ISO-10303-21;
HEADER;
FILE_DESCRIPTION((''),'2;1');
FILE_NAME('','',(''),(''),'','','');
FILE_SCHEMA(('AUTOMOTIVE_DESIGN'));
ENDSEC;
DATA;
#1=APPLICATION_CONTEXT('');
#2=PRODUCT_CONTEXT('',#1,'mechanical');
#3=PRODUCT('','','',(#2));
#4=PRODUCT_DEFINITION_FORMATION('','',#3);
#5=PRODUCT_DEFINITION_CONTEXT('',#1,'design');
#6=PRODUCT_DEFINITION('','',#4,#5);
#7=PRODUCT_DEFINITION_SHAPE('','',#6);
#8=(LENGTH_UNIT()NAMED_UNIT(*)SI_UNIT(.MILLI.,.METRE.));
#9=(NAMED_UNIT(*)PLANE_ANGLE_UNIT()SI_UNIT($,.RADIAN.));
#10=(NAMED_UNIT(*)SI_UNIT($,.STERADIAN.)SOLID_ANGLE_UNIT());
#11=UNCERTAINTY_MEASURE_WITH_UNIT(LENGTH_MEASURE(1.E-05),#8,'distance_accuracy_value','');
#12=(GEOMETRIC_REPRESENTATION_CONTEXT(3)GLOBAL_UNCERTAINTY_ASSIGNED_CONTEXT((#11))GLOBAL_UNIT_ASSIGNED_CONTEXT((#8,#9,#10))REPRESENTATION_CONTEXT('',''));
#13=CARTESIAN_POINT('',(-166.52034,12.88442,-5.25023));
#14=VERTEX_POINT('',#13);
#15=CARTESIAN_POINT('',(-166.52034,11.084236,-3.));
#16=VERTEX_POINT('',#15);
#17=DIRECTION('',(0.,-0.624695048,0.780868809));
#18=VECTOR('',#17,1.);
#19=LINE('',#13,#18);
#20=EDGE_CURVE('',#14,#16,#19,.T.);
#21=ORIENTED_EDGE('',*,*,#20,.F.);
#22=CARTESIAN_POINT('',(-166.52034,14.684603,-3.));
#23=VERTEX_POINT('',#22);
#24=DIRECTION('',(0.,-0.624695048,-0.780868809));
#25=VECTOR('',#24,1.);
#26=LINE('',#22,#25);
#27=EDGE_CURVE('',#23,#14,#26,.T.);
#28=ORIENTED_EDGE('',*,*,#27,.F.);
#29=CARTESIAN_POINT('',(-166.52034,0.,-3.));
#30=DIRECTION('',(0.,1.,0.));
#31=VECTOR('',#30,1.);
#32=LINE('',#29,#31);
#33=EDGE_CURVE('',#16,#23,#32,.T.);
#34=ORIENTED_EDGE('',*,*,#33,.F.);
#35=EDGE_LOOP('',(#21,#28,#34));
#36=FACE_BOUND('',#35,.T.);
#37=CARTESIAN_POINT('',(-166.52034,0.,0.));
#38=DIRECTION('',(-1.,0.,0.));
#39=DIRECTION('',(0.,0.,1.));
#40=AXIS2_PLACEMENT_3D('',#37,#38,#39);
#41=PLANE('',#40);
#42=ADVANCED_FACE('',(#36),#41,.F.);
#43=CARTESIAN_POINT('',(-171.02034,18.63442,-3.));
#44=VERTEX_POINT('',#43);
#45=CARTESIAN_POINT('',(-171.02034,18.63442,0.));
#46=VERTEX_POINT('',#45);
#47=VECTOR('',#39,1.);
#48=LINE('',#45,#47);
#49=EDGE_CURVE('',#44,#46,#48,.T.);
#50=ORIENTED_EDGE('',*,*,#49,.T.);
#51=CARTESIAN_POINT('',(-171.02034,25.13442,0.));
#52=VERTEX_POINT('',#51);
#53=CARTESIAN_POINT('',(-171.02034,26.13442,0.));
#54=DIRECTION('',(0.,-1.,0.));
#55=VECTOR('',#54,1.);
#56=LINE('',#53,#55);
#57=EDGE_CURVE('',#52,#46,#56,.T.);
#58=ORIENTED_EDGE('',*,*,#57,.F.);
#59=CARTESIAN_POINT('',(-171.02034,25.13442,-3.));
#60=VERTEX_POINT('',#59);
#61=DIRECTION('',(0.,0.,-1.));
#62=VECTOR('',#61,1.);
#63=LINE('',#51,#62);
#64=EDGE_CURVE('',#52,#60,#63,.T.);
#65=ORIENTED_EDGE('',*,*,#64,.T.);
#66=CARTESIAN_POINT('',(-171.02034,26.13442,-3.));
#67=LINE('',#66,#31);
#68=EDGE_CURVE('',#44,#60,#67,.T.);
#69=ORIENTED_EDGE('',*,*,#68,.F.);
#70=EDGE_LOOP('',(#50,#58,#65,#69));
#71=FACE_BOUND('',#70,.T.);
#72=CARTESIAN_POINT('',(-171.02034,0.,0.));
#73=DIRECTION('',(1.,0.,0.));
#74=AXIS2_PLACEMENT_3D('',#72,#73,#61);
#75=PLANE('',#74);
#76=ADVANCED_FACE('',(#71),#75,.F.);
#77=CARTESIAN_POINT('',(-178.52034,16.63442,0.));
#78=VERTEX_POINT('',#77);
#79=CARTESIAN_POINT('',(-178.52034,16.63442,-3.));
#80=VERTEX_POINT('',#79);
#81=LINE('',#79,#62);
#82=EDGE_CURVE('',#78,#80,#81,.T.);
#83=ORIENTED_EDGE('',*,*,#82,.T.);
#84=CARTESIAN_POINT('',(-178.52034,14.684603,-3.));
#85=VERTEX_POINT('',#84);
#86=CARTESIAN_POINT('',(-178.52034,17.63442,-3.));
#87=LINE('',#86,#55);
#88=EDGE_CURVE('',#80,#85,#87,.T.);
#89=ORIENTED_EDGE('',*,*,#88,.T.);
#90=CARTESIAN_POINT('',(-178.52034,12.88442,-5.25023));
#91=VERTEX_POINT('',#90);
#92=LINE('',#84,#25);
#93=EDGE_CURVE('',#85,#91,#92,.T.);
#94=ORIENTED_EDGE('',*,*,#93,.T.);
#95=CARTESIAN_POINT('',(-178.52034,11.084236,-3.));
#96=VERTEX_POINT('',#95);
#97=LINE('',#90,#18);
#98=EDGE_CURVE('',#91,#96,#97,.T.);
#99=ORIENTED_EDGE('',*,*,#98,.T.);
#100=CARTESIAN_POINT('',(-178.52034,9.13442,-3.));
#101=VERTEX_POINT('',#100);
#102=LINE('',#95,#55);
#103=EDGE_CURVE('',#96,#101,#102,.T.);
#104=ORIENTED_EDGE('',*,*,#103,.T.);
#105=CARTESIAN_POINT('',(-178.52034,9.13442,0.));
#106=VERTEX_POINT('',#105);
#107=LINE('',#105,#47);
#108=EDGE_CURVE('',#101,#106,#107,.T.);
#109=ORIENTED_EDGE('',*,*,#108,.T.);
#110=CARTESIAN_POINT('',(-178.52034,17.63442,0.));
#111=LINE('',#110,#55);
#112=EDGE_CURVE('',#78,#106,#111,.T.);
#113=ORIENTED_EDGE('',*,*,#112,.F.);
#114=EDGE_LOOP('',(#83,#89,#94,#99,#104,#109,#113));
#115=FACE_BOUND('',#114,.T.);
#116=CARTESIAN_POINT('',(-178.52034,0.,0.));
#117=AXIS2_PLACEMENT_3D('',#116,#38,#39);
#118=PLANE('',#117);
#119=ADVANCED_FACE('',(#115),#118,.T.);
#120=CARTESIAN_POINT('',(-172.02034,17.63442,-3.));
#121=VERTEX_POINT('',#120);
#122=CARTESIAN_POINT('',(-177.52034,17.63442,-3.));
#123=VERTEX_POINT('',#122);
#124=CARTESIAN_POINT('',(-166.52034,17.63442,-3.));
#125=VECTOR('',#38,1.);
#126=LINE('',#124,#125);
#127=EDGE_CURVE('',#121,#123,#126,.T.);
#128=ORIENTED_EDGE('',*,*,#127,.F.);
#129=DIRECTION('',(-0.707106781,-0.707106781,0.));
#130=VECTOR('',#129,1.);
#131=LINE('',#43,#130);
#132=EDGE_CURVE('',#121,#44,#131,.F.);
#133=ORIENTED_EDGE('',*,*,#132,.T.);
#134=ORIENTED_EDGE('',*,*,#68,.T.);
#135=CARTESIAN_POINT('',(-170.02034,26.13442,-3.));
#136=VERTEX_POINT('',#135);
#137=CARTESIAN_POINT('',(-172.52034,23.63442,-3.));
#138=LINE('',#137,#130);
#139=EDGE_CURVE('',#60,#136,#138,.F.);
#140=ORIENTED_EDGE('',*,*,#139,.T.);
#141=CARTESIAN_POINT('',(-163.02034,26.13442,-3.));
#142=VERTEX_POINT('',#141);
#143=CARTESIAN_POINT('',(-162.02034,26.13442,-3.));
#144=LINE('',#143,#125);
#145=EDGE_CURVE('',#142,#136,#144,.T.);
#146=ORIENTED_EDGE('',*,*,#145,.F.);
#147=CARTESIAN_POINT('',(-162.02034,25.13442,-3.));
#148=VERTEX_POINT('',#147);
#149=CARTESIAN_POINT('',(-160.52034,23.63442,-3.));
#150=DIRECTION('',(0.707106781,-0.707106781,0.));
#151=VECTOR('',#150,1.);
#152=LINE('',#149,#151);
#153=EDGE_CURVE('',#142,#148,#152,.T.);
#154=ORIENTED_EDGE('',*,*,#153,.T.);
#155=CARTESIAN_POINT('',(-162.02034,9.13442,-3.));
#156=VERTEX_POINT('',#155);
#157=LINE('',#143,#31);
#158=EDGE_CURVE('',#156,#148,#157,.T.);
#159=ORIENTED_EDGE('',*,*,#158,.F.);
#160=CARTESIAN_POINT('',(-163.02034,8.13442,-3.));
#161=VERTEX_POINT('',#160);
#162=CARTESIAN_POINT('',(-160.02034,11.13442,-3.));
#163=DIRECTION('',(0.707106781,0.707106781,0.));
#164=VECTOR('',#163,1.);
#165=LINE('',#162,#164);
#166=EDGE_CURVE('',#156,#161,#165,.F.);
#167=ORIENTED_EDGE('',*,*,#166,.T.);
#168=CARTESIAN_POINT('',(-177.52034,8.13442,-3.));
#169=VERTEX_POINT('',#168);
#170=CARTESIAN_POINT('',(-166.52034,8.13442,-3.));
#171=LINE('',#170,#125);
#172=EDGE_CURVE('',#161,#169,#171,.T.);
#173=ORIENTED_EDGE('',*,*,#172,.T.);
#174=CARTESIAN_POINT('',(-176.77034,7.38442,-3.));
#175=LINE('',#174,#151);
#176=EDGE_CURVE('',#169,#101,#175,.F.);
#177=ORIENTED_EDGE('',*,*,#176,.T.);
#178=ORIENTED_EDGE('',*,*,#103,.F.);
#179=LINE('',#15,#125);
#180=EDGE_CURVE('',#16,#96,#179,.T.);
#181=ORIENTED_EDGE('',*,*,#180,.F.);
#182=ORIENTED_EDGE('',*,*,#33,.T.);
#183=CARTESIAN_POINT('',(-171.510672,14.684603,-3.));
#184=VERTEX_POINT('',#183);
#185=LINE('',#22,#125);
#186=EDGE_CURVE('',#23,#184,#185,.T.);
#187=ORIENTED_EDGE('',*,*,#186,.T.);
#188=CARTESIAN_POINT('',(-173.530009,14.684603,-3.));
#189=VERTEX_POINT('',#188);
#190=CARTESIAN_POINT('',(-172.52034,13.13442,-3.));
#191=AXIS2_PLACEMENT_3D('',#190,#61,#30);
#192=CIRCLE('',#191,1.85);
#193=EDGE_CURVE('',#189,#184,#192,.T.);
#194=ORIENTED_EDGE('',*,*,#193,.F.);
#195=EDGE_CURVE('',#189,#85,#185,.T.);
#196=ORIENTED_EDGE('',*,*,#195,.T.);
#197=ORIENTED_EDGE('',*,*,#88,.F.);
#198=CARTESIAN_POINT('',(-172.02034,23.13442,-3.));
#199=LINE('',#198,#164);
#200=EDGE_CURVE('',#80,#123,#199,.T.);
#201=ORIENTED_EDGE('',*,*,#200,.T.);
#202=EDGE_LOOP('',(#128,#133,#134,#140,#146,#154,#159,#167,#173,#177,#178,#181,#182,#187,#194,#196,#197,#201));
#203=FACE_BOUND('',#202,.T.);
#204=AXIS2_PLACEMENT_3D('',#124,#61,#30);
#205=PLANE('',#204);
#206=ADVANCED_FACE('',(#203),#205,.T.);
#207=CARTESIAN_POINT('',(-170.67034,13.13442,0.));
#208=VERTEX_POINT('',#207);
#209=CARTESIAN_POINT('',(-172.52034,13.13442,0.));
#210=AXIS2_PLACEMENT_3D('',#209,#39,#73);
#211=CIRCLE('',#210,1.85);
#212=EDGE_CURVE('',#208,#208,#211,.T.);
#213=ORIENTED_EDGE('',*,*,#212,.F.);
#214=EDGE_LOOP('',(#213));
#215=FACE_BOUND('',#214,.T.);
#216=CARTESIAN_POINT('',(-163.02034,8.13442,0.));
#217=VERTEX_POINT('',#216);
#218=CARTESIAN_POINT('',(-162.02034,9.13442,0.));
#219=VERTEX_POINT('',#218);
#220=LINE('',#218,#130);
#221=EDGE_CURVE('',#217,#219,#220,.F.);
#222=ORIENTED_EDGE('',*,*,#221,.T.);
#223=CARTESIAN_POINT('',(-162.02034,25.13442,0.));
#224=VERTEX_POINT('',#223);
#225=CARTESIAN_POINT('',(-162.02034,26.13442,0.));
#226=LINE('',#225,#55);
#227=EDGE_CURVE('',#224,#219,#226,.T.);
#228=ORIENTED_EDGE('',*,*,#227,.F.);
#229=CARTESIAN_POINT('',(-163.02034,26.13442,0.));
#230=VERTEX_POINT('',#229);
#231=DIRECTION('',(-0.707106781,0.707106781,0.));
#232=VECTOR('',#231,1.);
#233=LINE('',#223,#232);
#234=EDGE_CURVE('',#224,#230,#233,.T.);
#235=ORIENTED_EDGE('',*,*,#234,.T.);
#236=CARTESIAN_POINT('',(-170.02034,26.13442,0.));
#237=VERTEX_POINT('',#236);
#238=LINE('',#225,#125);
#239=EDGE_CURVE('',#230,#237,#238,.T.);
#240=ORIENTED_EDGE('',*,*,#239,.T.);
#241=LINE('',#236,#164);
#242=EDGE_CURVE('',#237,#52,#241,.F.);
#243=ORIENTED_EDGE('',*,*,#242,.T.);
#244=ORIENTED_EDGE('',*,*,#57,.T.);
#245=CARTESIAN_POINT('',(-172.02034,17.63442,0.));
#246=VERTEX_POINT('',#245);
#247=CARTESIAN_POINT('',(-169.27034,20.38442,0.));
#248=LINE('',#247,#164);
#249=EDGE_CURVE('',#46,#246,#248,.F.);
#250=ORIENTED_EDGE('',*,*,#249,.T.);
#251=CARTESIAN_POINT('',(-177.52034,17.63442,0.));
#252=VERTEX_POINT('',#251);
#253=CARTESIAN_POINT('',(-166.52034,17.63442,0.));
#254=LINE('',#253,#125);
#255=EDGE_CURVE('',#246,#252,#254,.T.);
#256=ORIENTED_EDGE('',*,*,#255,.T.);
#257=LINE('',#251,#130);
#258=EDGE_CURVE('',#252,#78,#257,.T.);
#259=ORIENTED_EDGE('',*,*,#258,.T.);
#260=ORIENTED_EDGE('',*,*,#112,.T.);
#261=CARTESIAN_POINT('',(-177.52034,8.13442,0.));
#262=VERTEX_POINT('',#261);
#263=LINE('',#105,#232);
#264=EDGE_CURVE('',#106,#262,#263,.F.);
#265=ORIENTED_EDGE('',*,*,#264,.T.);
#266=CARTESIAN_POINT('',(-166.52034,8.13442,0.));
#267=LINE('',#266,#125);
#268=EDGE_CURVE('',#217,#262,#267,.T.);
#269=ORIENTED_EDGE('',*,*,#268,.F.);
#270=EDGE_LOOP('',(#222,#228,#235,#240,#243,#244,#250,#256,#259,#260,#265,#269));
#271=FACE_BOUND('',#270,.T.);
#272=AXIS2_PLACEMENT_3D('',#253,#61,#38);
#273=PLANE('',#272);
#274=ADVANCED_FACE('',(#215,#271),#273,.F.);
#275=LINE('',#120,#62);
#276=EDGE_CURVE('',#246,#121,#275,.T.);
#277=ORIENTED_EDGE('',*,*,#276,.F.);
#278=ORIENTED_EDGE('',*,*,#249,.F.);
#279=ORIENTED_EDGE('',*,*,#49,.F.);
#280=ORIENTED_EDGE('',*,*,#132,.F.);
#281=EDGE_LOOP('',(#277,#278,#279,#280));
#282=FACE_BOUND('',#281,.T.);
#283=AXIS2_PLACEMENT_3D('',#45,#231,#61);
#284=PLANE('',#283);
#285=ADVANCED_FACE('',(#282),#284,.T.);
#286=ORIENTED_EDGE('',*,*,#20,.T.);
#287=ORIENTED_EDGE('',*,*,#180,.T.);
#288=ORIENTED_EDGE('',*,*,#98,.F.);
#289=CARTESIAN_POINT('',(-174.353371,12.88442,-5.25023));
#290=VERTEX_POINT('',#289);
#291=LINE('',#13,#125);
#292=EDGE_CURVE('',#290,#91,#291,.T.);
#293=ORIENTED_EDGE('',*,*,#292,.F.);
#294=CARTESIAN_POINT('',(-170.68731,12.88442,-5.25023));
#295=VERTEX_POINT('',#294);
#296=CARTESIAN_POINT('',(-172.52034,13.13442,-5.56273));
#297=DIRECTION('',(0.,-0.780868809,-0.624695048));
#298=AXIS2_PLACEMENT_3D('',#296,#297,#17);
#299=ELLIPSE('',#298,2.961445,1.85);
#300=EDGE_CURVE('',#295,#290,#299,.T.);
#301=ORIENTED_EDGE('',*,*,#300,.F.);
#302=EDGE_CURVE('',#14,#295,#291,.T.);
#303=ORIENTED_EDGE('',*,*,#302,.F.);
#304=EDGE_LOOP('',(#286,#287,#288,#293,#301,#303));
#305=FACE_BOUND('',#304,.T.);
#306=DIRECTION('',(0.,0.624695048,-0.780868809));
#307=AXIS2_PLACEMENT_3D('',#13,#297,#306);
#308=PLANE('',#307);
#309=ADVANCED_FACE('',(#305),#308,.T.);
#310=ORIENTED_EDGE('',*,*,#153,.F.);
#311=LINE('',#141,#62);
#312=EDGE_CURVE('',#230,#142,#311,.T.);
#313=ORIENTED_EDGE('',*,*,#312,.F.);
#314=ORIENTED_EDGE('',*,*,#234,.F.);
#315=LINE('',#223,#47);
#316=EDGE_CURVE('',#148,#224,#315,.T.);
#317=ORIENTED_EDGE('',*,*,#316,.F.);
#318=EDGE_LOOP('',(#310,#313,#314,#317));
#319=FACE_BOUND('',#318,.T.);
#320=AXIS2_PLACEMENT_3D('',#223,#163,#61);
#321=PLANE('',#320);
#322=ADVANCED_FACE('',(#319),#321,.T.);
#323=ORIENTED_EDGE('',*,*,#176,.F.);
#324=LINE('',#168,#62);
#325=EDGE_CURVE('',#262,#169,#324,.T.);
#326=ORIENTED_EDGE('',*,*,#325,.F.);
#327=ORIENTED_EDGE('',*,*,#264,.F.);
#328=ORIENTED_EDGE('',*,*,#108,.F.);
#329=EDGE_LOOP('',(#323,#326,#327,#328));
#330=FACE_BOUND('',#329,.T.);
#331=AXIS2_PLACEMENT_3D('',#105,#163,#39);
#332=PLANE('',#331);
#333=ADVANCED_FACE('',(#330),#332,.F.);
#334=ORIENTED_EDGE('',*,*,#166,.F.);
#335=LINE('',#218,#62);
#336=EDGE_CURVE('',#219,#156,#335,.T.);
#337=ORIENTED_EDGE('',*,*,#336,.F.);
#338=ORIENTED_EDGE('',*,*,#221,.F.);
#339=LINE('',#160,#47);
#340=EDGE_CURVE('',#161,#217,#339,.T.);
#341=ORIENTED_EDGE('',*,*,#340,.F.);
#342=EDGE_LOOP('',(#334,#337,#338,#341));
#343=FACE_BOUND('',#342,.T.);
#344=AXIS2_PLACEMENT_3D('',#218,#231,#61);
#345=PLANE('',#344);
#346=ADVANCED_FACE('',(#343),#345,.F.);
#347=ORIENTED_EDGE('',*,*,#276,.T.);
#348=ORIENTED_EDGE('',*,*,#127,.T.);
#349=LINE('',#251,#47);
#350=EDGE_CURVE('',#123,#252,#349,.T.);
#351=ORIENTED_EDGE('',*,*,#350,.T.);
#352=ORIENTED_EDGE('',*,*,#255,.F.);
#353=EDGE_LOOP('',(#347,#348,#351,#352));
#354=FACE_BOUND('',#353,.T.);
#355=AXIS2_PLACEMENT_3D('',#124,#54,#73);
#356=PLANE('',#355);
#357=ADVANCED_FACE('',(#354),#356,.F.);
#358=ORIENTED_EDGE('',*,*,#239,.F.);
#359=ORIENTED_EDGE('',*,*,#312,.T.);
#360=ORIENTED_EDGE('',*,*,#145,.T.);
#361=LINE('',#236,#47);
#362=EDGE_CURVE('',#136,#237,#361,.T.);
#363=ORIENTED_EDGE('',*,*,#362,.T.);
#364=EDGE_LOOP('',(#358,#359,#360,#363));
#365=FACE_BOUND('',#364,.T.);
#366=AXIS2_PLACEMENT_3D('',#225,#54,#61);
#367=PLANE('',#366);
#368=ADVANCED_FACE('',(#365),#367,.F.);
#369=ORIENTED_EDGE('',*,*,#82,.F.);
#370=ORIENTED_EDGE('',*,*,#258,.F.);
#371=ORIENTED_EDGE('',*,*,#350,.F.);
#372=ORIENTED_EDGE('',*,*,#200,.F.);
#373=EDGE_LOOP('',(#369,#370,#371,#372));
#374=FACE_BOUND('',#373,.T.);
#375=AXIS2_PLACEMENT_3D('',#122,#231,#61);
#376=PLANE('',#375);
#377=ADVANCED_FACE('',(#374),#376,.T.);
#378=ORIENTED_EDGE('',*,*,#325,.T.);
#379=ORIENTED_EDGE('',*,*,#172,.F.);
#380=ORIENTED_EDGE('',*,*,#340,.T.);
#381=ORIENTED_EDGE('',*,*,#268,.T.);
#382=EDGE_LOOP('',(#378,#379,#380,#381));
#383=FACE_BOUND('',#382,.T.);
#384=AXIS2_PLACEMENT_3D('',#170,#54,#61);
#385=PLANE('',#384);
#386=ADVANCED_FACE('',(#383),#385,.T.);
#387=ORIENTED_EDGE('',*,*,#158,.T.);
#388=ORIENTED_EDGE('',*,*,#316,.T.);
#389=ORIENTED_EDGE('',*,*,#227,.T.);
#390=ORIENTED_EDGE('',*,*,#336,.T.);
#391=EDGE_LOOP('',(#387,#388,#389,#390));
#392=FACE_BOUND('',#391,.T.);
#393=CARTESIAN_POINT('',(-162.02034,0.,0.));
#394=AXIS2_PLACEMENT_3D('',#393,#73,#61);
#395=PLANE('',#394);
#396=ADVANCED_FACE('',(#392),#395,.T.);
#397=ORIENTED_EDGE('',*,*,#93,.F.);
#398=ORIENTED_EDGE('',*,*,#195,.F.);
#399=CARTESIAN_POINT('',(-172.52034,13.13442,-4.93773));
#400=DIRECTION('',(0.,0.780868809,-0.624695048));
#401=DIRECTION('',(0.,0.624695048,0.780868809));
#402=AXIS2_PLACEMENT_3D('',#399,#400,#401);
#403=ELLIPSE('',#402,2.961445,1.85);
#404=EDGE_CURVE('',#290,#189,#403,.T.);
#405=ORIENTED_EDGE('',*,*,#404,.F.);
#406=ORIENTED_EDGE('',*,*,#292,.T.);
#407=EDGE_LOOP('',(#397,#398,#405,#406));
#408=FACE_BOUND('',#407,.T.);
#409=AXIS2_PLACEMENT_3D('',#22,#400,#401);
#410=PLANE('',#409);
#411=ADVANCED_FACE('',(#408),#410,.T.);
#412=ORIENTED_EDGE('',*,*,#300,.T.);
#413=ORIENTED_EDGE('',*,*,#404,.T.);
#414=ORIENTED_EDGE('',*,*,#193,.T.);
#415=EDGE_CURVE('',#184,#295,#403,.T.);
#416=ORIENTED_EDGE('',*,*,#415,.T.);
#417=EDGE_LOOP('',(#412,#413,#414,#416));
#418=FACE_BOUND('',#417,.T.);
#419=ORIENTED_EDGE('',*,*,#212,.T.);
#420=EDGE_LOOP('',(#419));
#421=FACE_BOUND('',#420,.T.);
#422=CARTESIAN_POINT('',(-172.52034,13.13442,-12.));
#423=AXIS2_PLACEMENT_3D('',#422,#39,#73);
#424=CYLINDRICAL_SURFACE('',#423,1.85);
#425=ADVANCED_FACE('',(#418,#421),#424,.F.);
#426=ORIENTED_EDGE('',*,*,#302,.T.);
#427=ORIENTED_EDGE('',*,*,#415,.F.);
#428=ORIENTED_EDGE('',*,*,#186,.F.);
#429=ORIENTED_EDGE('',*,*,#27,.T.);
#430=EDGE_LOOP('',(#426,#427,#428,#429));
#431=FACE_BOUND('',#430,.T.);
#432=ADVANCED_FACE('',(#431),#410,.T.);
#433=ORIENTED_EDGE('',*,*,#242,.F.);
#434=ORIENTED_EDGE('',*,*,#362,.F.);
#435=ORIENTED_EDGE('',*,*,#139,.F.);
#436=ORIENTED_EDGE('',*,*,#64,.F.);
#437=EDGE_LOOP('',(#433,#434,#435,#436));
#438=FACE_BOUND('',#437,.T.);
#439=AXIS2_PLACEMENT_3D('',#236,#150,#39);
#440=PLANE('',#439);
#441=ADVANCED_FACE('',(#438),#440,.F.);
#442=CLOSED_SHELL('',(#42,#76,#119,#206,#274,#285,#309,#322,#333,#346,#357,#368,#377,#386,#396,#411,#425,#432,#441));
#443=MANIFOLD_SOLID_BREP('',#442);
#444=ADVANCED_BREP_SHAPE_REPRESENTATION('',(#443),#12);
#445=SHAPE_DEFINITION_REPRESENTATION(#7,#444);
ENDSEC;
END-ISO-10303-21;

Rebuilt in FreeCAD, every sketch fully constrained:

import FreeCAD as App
import Part
import Sketcher
from FreeCAD import Vector


def edges_at(feature, points):
    """Names of the edges that pass closest to the given points."""
    edges = feature.Shape.Edges
    near = lambda p: min(range(len(edges)), key=lambda i: edges[i].distToShape(Part.Vertex(*p))[0])
    return sorted({f"Edge{near(p) + 1}" for p in points})


def add_polygon(sketch, points):
    """Adds a closed chain of lines whose ends are joined by coincident constraints."""
    first, n = sketch.GeometryCount, len(points)
    for a, b in zip(points, points[1:] + points[:1]):
        sketch.addGeometry(Part.LineSegment(App.Vector(*a, 0), App.Vector(*b, 0)), False)
    for i in range(n):
        sketch.addConstraint(Sketcher.Constraint("Coincident", first + i, 2, first + (i + 1) % n, 1))

doc = App.newDocument("Part")
body = doc.addObject("PartDesign::Body", "Body")

# Sketch on YZ plane
sketch1 = body.newObject("Sketcher::SketchObject", "Sketch")
sketch1.AttachmentSupport = (doc.getObject("YZ_Plane"), [""])
sketch1.MapMode = "FlatFace"
sketch1.AttachmentOffset = App.Placement(Vector(0, 0, -178.52034), App.Rotation())
add_polygon(sketch1, [(14.7, -3), (12.9, -5.3), (11.1, -3), (8.1, -3), (8.1, 0), (17.6, 0), (17.6, -3)])  # lines 0-6
sketch1.addConstraint([
    Sketcher.Constraint("Horizontal", 2),
    Sketcher.Constraint("Vertical", 3),
    Sketcher.Constraint("Horizontal", 4),
    Sketcher.Constraint("Vertical", 5),
    Sketcher.Constraint("Horizontal", 6),
    Sketcher.Constraint("PointOnObject", 3, 2, -1),
    Sketcher.Constraint("Horizontal", 2, 2, 5, 2),
    Sketcher.Constraint("Equal", 2, 6),
    Sketcher.Constraint("Equal", 0, 1),
    Sketcher.Constraint("DistanceY", 3, 1, 3, 2, 3.0),
    Sketcher.Constraint("DistanceX", 4, 1, 4, 2, 9.5),
    Sketcher.Constraint("Distance", 0, 2.8817),
    Sketcher.Constraint("DistanceX", 2, 2, 2, 1, 2.949816),
    Sketcher.Constraint("DistanceX", -1, 1, 0, 2, 12.88442),
])
pad1 = body.newObject("PartDesign::Pad", "Pad")
pad1.Profile = sketch1
pad1.Length = 12

# Sketch on YZ plane
sketch2 = body.newObject("Sketcher::SketchObject", "Sketch001")
sketch2.AttachmentSupport = (doc.getObject("YZ_Plane"), [""])
sketch2.MapMode = "FlatFace"
sketch2.AttachmentOffset = App.Placement(Vector(0, 0, -166.52034), App.Rotation())
add_polygon(sketch2, [(26.1, 0), (8.1, 0), (8.1, -3), (26.1, -3)])  # lines 0-3
sketch2.addConstraint([
    Sketcher.Constraint("Horizontal", 0),
    Sketcher.Constraint("Vertical", 1),
    Sketcher.Constraint("Horizontal", 2),
    Sketcher.Constraint("Vertical", 3),
    Sketcher.Constraint("PointOnObject", 0, 2, -1),
    Sketcher.Constraint("DistanceX", 0, 2, 0, 1, 18.0),
    Sketcher.Constraint("DistanceY", 1, 2, 1, 1, 3.0),
    Sketcher.Constraint("DistanceX", -1, 1, 0, 2, 8.13442),
])
pad2 = body.newObject("PartDesign::Pad", "Pad001")
pad2.Profile = sketch2
pad2.Length = 9
pad2.Midplane = True
doc.recompute()

chamfer = body.newObject("PartDesign::Chamfer", "Chamfer")
chamfer.Base = (pad2, edges_at(pad2, [
    (-171.02, 17.634, -1.5),
    (-171.02, 26.134, -1.5),
    (-162.02, 8.134, -1.5),
    (-162.02, 26.134, -1.5),
    (-178.52, 17.634, -1.5),
    (-178.52, 8.134, -1.5),
]))
chamfer.Size = 1

# Sketch on XY plane
sketch3 = body.newObject("Sketcher::SketchObject", "Sketch002")
sketch3.AttachmentSupport = (doc.getObject("XY_Plane"), [""])
sketch3.MapMode = "FlatFace"
sketch3.addGeometry(Part.Circle(Vector(-172.5, 13.1, 0), Vector(0, 0, 1), 1.9), False)
sketch3.addConstraint([
    Sketcher.Constraint("Diameter", 0, 3.7),
    Sketcher.Constraint("DistanceX", 0, 3, -1, 1, 172.52034),
    Sketcher.Constraint("DistanceY", -1, 1, 0, 3, 13.13442),
])
pocket1 = body.newObject("PartDesign::Pocket", "Pocket")
pocket1.Profile = sketch3
pocket1.Length = 12

doc.recompute()
